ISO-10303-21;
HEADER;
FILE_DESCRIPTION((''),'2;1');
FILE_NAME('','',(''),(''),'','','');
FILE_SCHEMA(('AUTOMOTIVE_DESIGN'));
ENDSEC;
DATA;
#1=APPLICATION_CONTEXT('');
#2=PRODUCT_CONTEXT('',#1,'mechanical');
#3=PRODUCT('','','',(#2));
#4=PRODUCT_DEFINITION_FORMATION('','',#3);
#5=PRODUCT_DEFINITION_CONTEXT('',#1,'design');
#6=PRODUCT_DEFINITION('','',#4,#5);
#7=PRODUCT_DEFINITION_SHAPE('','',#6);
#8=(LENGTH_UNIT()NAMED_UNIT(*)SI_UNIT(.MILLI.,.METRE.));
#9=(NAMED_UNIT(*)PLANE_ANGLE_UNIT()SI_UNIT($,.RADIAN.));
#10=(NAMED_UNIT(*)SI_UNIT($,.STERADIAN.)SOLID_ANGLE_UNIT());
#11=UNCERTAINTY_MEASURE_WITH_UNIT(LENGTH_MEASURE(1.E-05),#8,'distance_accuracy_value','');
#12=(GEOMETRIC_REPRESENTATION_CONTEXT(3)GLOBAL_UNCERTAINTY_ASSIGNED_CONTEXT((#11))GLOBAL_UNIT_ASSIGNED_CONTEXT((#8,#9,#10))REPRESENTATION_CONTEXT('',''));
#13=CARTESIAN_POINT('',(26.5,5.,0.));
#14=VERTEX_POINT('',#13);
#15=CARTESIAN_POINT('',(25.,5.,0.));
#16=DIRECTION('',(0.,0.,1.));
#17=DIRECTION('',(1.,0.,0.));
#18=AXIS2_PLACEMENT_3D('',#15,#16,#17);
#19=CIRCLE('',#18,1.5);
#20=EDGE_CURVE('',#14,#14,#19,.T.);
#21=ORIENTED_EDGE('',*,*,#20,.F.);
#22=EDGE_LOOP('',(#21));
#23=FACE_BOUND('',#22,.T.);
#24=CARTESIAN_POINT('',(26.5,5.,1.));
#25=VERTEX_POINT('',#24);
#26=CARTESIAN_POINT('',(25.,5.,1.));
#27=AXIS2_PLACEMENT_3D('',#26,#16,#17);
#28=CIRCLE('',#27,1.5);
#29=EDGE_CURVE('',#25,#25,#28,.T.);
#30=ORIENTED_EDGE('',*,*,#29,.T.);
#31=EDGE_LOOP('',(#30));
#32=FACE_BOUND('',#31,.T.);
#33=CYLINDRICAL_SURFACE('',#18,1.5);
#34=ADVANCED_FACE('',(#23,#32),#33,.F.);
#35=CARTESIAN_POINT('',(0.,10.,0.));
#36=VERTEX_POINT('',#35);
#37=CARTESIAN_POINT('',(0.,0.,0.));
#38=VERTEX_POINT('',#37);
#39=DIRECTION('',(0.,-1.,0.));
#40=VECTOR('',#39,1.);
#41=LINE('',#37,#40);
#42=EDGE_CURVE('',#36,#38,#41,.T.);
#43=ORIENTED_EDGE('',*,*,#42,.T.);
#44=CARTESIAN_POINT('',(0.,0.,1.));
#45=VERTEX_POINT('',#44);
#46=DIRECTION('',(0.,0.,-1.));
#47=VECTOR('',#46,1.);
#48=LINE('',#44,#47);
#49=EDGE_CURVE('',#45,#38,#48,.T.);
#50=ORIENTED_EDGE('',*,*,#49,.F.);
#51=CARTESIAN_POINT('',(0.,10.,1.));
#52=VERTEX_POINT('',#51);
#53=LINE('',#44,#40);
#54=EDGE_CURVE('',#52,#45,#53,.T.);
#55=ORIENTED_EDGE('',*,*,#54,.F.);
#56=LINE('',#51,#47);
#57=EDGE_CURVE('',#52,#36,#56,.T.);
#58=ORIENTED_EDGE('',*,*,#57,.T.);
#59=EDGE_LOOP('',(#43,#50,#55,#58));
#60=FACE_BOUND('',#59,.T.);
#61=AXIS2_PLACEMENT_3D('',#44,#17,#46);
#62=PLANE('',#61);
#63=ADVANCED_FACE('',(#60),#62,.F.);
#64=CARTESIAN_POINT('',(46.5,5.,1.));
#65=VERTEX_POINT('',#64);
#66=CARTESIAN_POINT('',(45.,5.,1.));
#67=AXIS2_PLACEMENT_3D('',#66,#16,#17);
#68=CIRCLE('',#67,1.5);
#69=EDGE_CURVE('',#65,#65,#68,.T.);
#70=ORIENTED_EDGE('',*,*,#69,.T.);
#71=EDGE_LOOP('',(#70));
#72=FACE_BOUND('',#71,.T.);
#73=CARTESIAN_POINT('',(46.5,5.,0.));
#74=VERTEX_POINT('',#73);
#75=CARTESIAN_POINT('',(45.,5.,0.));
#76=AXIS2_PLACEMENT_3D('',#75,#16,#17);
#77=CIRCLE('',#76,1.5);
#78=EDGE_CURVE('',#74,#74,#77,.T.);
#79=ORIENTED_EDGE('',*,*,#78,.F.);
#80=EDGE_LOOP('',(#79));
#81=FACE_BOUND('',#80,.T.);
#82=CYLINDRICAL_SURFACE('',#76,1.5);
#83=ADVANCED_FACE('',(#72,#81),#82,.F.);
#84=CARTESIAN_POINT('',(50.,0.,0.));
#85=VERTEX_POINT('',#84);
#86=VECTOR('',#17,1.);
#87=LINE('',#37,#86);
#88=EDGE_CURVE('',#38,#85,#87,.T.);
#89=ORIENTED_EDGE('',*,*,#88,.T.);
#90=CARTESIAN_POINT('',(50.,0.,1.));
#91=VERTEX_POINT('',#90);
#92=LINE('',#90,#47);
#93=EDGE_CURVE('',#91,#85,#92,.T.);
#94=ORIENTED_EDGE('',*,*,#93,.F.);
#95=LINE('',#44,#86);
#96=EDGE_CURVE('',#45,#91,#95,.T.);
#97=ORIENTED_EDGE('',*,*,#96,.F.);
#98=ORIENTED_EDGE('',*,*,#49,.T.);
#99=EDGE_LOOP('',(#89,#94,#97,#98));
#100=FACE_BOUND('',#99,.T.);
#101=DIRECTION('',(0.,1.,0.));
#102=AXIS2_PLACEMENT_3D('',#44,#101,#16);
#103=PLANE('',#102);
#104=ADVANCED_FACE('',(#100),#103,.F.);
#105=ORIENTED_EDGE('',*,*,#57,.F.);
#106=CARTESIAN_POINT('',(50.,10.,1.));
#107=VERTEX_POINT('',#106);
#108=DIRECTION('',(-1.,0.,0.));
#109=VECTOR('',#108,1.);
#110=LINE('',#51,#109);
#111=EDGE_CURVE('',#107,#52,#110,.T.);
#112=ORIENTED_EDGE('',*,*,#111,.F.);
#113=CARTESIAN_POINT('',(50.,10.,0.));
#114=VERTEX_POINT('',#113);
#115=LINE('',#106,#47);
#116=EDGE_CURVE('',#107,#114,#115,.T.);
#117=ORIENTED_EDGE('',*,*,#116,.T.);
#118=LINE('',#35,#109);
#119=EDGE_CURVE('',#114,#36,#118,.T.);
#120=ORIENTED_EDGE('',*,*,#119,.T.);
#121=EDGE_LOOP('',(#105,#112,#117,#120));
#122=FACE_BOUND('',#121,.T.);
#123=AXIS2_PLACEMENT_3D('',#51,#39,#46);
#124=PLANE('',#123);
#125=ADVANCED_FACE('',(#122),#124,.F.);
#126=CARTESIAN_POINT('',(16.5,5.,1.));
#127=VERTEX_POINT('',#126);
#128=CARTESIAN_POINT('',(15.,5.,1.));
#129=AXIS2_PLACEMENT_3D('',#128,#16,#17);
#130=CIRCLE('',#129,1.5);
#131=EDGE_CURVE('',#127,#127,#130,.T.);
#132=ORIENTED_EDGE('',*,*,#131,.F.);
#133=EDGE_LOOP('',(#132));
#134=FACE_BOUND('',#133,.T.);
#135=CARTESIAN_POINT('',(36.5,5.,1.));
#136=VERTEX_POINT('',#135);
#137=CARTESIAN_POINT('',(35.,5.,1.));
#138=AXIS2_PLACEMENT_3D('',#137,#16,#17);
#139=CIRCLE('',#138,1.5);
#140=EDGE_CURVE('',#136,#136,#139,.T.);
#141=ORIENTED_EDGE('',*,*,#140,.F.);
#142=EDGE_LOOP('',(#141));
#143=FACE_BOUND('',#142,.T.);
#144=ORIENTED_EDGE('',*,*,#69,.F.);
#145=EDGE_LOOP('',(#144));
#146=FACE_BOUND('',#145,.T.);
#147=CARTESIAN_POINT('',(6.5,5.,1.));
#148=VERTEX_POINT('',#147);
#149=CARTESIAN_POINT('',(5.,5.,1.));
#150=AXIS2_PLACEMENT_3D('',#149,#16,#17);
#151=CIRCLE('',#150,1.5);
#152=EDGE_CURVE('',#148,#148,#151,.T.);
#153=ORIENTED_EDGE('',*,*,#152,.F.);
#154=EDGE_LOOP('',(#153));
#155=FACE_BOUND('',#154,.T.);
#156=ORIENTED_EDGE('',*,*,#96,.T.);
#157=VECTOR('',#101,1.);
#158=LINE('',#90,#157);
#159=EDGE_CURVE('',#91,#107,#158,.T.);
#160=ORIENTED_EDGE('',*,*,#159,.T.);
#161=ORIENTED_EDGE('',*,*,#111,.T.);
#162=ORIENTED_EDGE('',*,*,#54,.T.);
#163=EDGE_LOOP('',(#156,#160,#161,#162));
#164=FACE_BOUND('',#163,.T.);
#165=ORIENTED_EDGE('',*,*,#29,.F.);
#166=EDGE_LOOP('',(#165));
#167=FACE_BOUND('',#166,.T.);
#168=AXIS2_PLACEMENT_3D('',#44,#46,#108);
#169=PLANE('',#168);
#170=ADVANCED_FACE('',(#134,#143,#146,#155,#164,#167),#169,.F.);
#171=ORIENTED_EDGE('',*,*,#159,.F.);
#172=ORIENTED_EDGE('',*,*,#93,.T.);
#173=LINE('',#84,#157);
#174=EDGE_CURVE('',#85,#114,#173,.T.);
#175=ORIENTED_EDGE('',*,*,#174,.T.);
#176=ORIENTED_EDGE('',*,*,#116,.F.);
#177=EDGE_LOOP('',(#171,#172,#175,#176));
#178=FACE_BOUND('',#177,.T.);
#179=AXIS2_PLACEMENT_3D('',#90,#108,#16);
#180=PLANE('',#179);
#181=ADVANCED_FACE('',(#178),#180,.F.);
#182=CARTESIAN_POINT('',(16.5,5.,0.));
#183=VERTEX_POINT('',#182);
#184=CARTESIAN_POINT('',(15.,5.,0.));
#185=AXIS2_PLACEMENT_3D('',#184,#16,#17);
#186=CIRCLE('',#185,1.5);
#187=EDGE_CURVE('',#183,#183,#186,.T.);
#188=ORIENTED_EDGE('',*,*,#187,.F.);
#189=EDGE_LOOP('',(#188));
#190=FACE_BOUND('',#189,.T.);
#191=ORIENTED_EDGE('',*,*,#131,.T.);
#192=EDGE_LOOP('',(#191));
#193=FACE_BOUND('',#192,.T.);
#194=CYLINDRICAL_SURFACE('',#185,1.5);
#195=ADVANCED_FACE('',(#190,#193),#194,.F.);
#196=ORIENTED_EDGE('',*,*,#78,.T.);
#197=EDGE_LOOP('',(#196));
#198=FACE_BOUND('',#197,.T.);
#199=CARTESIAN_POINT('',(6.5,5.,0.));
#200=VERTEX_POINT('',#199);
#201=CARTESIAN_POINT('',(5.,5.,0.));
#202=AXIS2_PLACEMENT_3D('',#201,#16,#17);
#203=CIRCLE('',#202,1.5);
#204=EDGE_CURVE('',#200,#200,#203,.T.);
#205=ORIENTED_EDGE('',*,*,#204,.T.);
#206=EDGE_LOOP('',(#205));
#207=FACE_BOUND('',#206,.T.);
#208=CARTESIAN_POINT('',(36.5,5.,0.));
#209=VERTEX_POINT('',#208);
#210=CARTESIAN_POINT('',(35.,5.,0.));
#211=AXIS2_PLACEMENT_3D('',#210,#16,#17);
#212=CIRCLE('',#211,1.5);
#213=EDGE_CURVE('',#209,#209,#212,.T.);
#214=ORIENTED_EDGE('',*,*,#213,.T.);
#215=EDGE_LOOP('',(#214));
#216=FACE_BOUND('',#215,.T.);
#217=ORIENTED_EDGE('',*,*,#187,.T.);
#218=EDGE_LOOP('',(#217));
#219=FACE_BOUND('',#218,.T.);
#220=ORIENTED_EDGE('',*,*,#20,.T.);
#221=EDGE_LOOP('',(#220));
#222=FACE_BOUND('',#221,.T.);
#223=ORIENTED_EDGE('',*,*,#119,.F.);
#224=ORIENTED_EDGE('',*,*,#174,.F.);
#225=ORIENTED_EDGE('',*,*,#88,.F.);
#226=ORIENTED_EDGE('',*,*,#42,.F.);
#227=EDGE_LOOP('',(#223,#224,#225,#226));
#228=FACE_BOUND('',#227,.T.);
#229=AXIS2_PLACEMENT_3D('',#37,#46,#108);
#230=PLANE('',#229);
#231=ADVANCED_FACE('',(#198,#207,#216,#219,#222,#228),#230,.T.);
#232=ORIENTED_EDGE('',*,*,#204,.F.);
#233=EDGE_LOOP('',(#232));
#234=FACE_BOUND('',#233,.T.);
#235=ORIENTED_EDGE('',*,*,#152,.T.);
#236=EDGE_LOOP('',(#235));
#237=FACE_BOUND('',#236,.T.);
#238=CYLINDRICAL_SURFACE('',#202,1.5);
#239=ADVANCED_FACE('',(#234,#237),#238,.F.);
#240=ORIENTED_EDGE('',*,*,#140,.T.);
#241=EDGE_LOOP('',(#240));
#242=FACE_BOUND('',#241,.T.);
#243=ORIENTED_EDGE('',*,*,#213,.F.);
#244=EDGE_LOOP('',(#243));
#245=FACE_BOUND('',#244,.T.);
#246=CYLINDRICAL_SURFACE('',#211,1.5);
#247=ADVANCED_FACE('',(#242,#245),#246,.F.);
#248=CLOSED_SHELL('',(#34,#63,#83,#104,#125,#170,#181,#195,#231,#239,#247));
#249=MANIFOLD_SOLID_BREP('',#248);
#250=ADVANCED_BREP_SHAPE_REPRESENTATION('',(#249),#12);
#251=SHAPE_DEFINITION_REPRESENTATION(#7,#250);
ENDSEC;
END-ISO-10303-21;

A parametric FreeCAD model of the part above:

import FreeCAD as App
import Part
import Sketcher

V = App.Vector

doc = App.newDocument("Part")
body = doc.addObject("PartDesign::Body", "Body")

# Sketch on XY plane
sketch1 = body.newObject("Sketcher::SketchObject", "Sketch")
sketch1.AttachmentSupport = (doc.getObject("XY_Plane"), [""])
sketch1.MapMode = "FlatFace"
sketch1.addGeometry([
    Part.LineSegment(V(0, 10, 0), V(0, 0, 0)),
    Part.LineSegment(V(0, 0, 0), V(50, 0, 0)),
    Part.LineSegment(V(50, 0, 0), V(50, 10, 0)),
    Part.LineSegment(V(50, 10, 0), V(0, 10, 0)),
], False)
sketch1.addConstraint([
    Sketcher.Constraint("Coincident", 0, 2, 1, 1),
    Sketcher.Constraint("Coincident", 1, 2, 2, 1),
    Sketcher.Constraint("Coincident", 2, 2, 3, 1),
    Sketcher.Constraint("Coincident", 3, 2, 0, 1),
    Sketcher.Constraint("Vertical", 0),
    Sketcher.Constraint("Horizontal", 1),
    Sketcher.Constraint("Vertical", 2),
    Sketcher.Constraint("Horizontal", 3),
    Sketcher.Constraint("Coincident", 0, 2, -1, 1),
    Sketcher.Constraint("DistanceX", 1, 1, 1, 2, 50.0),
    Sketcher.Constraint("DistanceY", 0, 2, 0, 1, 10.0),
])
pad1 = body.newObject("PartDesign::Pad", "Pad")
pad1.Profile = sketch1
pad1.Length = 1

# Sketch on XY plane
sketch2 = body.newObject("Sketcher::SketchObject", "Sketch001")
sketch2.AttachmentSupport = (doc.getObject("XY_Plane"), [""])
sketch2.MapMode = "FlatFace"
sketch2.AttachmentOffset = App.Placement(V(0, 0, 1), App.Rotation())
sketch2.addGeometry(Part.Circle(V(25, 5, 0), V(0, 0, 1), 1.5), False)
sketch2.addConstraint([
    Sketcher.Constraint("Diameter", 0, 3.0),
    Sketcher.Constraint("DistanceX", -1, 1, 0, 3, 25.0),
    Sketcher.Constraint("DistanceY", -1, 1, 0, 3, 5.0),
])
pocket1 = body.newObject("PartDesign::Pocket", "Pocket")
pocket1.Profile = sketch2
pocket1.Type = "ThroughAll"
doc.recompute()

linearpattern = body.newObject("PartDesign::LinearPattern", "LinearPattern")
linearpattern.Originals = [pocket1]
linearpattern.Direction = (doc.getObject("X_Axis"), [""])
linearpattern.Mode = "offset"
linearpattern.Offset = 10
linearpattern.Occurrences = 3
body.Tip = linearpattern
doc.recompute()

linearpattern2 = body.newObject("PartDesign::LinearPattern", "LinearPattern001")
linearpattern2.Originals = [pocket1]
linearpattern2.Direction = (doc.getObject("X_Axis"), [""])
linearpattern2.Mode = "offset"
linearpattern2.Offset = 10
linearpattern2.Occurrences = 3
linearpattern2.Reversed = True
body.Tip = linearpattern2

doc.recompute()
